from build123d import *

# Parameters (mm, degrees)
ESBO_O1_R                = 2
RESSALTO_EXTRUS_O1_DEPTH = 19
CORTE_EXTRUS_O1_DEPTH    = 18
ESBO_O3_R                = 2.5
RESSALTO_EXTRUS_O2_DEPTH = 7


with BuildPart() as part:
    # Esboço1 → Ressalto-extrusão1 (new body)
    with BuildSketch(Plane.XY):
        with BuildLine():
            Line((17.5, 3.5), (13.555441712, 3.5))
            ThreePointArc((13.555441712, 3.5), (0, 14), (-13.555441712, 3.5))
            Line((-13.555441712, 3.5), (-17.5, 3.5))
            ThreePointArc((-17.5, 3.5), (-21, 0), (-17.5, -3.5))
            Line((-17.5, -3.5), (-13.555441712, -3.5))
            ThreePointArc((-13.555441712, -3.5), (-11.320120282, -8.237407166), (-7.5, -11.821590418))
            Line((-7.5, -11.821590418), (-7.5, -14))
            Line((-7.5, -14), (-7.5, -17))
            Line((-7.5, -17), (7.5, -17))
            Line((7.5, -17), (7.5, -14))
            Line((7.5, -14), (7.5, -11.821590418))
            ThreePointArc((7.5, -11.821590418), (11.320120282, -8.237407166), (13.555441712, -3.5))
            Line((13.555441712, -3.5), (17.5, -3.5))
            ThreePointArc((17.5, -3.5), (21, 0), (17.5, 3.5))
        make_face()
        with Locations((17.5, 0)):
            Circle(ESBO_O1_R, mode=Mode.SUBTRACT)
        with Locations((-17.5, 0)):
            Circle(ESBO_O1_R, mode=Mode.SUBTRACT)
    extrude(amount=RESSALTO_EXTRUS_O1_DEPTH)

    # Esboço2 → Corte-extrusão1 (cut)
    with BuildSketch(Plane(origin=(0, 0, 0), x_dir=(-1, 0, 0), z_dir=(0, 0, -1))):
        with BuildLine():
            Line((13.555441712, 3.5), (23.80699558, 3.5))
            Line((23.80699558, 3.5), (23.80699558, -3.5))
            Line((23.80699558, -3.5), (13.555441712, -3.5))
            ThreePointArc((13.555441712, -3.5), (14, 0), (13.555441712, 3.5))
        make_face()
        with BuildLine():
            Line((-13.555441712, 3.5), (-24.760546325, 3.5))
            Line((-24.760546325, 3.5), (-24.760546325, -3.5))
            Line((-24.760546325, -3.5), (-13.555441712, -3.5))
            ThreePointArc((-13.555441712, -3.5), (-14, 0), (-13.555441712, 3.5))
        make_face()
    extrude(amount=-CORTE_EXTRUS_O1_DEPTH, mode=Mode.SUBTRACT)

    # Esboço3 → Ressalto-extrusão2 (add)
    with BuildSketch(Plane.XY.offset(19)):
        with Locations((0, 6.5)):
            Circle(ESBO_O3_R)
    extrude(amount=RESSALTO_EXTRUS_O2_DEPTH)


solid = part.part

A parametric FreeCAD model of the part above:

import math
import FreeCAD as App
import Part
import Sketcher
Q = App.Units.Quantity

doc = App.newDocument("Part")
body = doc.addObject("PartDesign::Body", "Body")

sketch1 = body.newObject("Sketcher::SketchObject", "Sketch")
sketch1.AttachmentSupport = (doc.getObject("XY_Plane"), [""])
sketch1.MapMode = "FlatFace"
sketch1.addGeometry([
    Part.LineSegment(App.Vector(17.5, 3.5, 0), App.Vector(13.6, 3.5, 0)),
    Part.ArcOfCircle(Part.Circle(App.Vector(0, 0, 0), App.Vector(0, 0, 1), 14), math.radians(14), math.radians(166)),
    Part.LineSegment(App.Vector(-13.6, 3.5, 0), App.Vector(-17.5, 3.5, 0)),
    Part.ArcOfCircle(Part.Circle(App.Vector(-17.5, 0, 0), App.Vector(0, 0, 1), 3.5), math.radians(90), math.radians(270)),
    Part.LineSegment(App.Vector(-17.5, -3.5, 0), App.Vector(-13.6, -3.5, 0)),
    Part.ArcOfCircle(Part.Circle(App.Vector(0, 0, 0), App.Vector(0, 0, 1), 14), math.radians(-166), math.radians(-122)),
    Part.LineSegment(App.Vector(-7.5, -11.8, 0), App.Vector(-7.5, -17, 0)),
    Part.LineSegment(App.Vector(-7.5, -17, 0), App.Vector(7.5, -17, 0)),
    Part.LineSegment(App.Vector(7.5, -17, 0), App.Vector(7.5, -11.8, 0)),
    Part.ArcOfCircle(Part.Circle(App.Vector(0, 0, 0), App.Vector(0, 0, 1), 14), math.radians(-58), math.radians(-14)),
    Part.LineSegment(App.Vector(13.6, -3.5, 0), App.Vector(17.5, -3.5, 0)),
    Part.ArcOfCircle(Part.Circle(App.Vector(17.5, 0, 0), App.Vector(0, 0, 1), 3.5), math.radians(-90), math.radians(90)),
    Part.Circle(App.Vector(-17.5, 0, 0), App.Vector(0, 0, 1), 2),
    Part.Circle(App.Vector(17.5, 0, 0), App.Vector(0, 0, 1), 2),
], False)
sketch1.addConstraint([
    Sketcher.Constraint("Coincident", 0, 2, 1, 1),
    Sketcher.Constraint("Coincident", 1, 2, 2, 1),
    Sketcher.Constraint("Tangent", 2, 2, 3, 1),
    Sketcher.Constraint("Tangent", 3, 2, 4, 1),
    Sketcher.Constraint("Coincident", 4, 2, 5, 1),
    Sketcher.Constraint("Coincident", 5, 2, 6, 1),
    Sketcher.Constraint("Coincident", 6, 2, 7, 1),
    Sketcher.Constraint("Coincident", 7, 2, 8, 1),
    Sketcher.Constraint("Coincident", 8, 2, 9, 1),
    Sketcher.Constraint("Coincident", 9, 2, 10, 1),
    Sketcher.Constraint("Tangent", 10, 2, 11, 1),
    Sketcher.Constraint("Tangent", 11, 2, 0, 1),
    Sketcher.Constraint("Horizontal", 0),
    Sketcher.Constraint("Horizontal", 2),
    Sketcher.Constraint("Horizontal", 4),
    Sketcher.Constraint("Vertical", 6),
    Sketcher.Constraint("Horizontal", 7),
    Sketcher.Constraint("Vertical", 8),
    Sketcher.Constraint("Horizontal", 10),
    Sketcher.Constraint("Coincident", 1, 3, -1, 1),
    Sketcher.Constraint("Coincident", 5, 3, -1, 1),
    Sketcher.Constraint("Coincident", 9, 3, -1, 1),
    Sketcher.Constraint("Coincident", 12, 3, 3, 3),
    Sketcher.Constraint("Coincident", 13, 3, 11, 3),
    Sketcher.Constraint("Equal", 1, 5),
    Sketcher.Constraint("Equal", 5, 9),
    Sketcher.Constraint("Equal", 3, 11),
    Sketcher.Constraint("Equal", 12, 13),
    Sketcher.Constraint("Symmetric", 3, 3, 11, 3, -1, 1),
    Sketcher.Constraint("PointOnObject", 3, 3, -1),
    Sketcher.Constraint("Horizontal", 5, 2, 8, 2),
    Sketcher.Constraint("Diameter", 12, Q("4 mm")),
    Sketcher.Constraint("Radius", 1, Q("14 mm")),
    Sketcher.Constraint("Radius", 3, Q("3.5 mm")),
    Sketcher.Constraint("DistanceX", 7, 1, 7, 2, Q("15 mm")),
    Sketcher.Constraint("DistanceY", 6, 2, -1, 1, Q("17 mm")),
    Sketcher.Constraint("DistanceX", 3, 3, 11, 3, Q("35 mm")),
])
pad1 = body.newObject("PartDesign::Pad", "Pad")
pad1.Profile = sketch1
pad1.Length = 19

sketch2 = body.newObject("Sketcher::SketchObject", "Sketch001")
sketch2.AttachmentSupport = (doc.getObject("XY_Plane"), [""])
sketch2.MapMode = "FlatFace"
sketch2.addGeometry([
    Part.LineSegment(App.Vector(-24, 4, 0), App.Vector(-14, 4, 0)),
    Part.ArcOfCircle(Part.Circle(App.Vector(0, 0, 0), App.Vector(0, 0, 1), 14), math.radians(166), math.radians(194)),
    Part.LineSegment(App.Vector(-14, -4, 0), App.Vector(-24, -4, 0)),
    Part.LineSegment(App.Vector(-24, -4, 0), App.Vector(-24, 4, 0)),
    Part.LineSegment(App.Vector(14, 4, 0), App.Vector(25, 4, 0)),
    Part.LineSegment(App.Vector(25, 4, 0), App.Vector(25, -4, 0)),
    Part.LineSegment(App.Vector(25, -4, 0), App.Vector(14, -4, 0)),
    Part.ArcOfCircle(Part.Circle(App.Vector(0, 0, 0), App.Vector(0, 0, 1), 14), math.radians(-14), math.radians(14)),
], False)
sketch2.addConstraint([
    Sketcher.Constraint("Coincident", 0, 2, 1, 1),
    Sketcher.Constraint("Coincident", 1, 2, 2, 1),
    Sketcher.Constraint("Coincident", 2, 2, 3, 1),
    Sketcher.Constraint("Coincident", 3, 2, 0, 1),
    Sketcher.Constraint("Coincident", 4, 2, 5, 1),
    Sketcher.Constraint("Coincident", 5, 2, 6, 1),
    Sketcher.Constraint("Coincident", 6, 2, 7, 1),
    Sketcher.Constraint("Coincident", 7, 2, 4, 1),
    Sketcher.Constraint("Horizontal", 0),
    Sketcher.Constraint("Horizontal", 2),
    Sketcher.Constraint("Vertical", 3),
    Sketcher.Constraint("Horizontal", 4),
    Sketcher.Constraint("Vertical", 5),
    Sketcher.Constraint("Horizontal", 6),
    Sketcher.Constraint("Coincident", 1, 3, -1, 1),
    Sketcher.Constraint("Coincident", 7, 3, -1, 1),
    Sketcher.Constraint("Equal", 1, 7),
    Sketcher.Constraint("Horizontal", 3, 2, 4, 2),
    Sketcher.Constraint("Horizontal", 2, 2, 5, 2),
    Sketcher.Constraint("Vertical", 0, 2, 1, 2),
    Sketcher.Constraint("Radius", 1, Q("14 mm")),
    Sketcher.Constraint("DistanceY", 3, 1, 3, 2, Q("7 mm")),
    Sketcher.Constraint("DistanceX", 0, 1, 0, 2, Q("10.251554 mm")),
    Sketcher.Constraint("DistanceX", 4, 1, 4, 2, Q("11.205105 mm")),
])
pocket1 = body.newObject("PartDesign::Pocket", "Pocket")
pocket1.Profile = sketch2
pocket1.Length = 18
pocket1.Reversed = True

sketch3 = body.newObject("Sketcher::SketchObject", "Sketch002")
sketch3.AttachmentSupport = (doc.getObject("XY_Plane"), [""])
sketch3.MapMode = "FlatFace"
sketch3.AttachmentOffset = App.Placement(App.Vector(0, 0, 19), App.Rotation())
sketch3.addGeometry(Part.Circle(App.Vector(0, 6.5, 0), App.Vector(0, 0, 1), 2.5), False)
sketch3.addConstraint([
    Sketcher.Constraint("PointOnObject", 0, 3, -2),
    Sketcher.Constraint("Diameter", 0, Q("5 mm")),
    Sketcher.Constraint("DistanceY", -1, 1, 0, 3, Q("6.5 mm")),
])
pad2 = body.newObject("PartDesign::Pad", "Pad001")
pad2.Profile = sketch3
pad2.Length = 7

doc.recompute()
